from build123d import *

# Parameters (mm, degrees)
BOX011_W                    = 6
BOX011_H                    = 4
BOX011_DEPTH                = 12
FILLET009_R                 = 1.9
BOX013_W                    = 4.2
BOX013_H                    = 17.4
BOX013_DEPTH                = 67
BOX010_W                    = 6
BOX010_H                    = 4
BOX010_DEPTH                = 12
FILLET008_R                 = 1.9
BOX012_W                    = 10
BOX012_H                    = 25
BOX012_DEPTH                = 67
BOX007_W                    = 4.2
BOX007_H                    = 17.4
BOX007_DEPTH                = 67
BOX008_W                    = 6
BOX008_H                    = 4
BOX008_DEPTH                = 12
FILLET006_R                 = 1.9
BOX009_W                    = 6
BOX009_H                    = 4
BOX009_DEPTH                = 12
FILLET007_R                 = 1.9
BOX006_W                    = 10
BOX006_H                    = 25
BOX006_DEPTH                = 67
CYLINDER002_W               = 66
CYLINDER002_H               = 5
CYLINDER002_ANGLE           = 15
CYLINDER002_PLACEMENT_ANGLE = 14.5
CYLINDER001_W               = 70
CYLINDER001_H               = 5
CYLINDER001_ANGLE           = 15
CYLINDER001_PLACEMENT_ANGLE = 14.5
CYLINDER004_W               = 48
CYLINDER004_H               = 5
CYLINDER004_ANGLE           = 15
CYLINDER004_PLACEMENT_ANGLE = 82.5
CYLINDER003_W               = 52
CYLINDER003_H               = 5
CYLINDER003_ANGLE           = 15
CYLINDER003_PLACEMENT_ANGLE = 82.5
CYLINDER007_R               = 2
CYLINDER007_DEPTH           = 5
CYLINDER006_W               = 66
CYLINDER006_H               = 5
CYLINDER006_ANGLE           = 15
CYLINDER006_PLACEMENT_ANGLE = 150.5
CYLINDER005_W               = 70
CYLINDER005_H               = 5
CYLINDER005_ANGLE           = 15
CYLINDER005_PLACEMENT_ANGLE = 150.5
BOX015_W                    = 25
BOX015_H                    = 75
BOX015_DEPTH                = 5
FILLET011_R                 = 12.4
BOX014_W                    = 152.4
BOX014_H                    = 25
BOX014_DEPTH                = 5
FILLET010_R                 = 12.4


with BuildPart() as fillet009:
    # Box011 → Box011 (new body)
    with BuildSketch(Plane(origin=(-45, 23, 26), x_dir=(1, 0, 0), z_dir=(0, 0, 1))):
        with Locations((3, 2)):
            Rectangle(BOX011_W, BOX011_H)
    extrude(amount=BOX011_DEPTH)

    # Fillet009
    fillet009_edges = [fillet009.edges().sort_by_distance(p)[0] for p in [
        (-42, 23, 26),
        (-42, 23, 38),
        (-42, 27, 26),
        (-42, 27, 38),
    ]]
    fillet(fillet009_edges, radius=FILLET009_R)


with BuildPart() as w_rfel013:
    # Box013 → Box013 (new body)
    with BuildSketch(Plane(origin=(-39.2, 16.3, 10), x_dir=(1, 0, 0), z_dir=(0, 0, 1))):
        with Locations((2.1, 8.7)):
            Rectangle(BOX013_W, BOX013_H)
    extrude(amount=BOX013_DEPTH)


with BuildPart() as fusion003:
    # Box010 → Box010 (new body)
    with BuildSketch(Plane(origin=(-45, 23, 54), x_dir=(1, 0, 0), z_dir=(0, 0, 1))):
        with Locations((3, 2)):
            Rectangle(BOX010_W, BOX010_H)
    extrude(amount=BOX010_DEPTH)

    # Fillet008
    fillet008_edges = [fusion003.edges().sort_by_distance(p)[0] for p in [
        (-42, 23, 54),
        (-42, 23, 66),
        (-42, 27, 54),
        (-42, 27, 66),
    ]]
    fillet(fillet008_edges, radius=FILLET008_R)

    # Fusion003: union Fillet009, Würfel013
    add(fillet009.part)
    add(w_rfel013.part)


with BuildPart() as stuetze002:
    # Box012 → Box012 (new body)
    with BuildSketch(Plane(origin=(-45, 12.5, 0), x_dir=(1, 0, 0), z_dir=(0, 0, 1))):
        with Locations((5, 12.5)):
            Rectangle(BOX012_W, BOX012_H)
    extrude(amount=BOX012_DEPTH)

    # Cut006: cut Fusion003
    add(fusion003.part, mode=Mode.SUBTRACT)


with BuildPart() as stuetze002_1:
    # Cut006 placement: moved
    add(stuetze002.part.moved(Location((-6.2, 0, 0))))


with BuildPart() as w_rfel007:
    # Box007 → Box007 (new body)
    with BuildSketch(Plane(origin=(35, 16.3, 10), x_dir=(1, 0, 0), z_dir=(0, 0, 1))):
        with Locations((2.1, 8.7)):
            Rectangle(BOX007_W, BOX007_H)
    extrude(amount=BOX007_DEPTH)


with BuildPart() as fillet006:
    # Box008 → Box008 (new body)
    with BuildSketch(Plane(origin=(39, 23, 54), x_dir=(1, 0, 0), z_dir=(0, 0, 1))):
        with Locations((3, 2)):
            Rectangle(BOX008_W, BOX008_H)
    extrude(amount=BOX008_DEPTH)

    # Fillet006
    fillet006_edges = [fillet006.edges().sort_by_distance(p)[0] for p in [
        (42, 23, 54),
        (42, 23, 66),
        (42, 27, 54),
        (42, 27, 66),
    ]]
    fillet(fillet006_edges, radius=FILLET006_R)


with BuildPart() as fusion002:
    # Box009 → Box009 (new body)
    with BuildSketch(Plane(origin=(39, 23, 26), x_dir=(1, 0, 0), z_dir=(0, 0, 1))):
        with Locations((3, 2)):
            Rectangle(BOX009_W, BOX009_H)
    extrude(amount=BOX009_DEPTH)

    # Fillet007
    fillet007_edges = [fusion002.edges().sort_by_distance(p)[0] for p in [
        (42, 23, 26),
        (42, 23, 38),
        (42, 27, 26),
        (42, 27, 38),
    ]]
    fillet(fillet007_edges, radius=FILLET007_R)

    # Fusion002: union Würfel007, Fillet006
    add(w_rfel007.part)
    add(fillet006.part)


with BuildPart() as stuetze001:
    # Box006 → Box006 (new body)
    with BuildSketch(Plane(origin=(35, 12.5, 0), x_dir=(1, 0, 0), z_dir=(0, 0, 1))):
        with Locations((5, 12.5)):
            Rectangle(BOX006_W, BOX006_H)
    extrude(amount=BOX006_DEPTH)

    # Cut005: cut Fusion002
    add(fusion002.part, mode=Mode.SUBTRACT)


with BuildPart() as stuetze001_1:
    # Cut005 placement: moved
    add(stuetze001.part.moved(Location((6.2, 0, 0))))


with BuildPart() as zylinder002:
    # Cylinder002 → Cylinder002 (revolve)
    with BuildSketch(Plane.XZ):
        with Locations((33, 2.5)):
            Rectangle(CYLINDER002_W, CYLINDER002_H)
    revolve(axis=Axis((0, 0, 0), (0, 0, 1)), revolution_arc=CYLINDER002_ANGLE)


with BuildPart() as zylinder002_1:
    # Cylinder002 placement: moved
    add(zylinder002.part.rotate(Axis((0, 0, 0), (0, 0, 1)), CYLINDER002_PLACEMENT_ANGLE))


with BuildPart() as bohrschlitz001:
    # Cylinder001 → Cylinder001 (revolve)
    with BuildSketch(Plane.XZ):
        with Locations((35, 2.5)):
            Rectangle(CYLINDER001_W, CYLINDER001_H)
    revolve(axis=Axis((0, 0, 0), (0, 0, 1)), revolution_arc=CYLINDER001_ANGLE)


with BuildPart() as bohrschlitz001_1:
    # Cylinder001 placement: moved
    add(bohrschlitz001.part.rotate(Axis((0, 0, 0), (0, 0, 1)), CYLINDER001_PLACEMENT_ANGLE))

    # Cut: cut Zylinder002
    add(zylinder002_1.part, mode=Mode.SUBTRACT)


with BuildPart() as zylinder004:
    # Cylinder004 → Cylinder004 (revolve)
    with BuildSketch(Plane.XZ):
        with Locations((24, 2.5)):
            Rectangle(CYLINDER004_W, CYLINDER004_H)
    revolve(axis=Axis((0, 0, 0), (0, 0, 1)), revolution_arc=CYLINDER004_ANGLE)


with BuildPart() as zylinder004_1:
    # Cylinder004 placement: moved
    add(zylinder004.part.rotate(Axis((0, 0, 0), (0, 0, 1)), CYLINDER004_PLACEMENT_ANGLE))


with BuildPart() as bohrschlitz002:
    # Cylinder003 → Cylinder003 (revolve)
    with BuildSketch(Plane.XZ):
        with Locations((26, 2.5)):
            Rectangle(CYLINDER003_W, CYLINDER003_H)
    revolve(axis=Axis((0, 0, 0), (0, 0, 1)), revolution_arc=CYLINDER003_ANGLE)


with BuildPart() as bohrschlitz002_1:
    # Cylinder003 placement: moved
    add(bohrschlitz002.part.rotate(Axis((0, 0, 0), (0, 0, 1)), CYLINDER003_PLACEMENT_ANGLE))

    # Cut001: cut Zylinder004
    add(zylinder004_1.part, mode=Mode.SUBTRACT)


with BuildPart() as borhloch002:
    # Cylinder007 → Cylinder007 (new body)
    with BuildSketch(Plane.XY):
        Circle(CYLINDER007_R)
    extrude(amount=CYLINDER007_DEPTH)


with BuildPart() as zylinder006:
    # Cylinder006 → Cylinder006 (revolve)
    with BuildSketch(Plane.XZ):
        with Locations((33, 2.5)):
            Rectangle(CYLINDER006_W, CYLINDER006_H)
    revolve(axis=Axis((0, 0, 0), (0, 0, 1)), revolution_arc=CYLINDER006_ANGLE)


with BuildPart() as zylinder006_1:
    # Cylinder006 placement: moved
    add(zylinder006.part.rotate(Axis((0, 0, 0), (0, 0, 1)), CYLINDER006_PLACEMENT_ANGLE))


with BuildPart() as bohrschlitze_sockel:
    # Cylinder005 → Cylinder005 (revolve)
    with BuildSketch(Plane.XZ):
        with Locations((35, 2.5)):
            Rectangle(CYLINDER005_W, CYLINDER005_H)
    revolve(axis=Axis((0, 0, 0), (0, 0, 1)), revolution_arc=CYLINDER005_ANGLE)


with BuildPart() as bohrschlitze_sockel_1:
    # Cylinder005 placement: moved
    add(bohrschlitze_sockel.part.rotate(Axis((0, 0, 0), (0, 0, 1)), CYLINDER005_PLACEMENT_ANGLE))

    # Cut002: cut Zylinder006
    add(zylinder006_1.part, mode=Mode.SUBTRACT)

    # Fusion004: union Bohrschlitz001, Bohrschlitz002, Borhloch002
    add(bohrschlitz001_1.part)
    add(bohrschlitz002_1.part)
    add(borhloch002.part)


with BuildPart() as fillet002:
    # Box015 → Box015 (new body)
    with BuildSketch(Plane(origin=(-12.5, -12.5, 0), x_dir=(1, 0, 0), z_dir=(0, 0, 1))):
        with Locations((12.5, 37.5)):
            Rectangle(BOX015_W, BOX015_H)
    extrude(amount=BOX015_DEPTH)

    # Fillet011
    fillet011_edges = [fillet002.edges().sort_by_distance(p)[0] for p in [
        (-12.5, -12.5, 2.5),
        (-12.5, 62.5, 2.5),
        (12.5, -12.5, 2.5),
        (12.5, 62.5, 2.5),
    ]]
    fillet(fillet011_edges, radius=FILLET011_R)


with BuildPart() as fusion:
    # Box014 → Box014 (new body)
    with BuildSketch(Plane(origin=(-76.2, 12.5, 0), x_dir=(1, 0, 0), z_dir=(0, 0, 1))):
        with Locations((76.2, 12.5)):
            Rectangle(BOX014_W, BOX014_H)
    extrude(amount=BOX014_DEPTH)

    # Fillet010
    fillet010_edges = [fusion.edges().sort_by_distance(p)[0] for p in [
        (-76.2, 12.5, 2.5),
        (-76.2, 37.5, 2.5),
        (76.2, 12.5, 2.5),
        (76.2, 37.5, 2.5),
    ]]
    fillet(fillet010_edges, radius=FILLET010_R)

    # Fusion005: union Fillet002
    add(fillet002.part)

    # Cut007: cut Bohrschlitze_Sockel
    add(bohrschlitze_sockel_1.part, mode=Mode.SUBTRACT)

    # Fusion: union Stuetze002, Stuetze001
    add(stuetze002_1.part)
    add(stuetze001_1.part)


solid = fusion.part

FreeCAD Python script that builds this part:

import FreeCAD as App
import Part
import Sketcher
from FreeCAD import Vector


def edges_at(feature, points):
    """Names of the edges that pass closest to the given points."""
    edges = feature.Shape.Edges
    near = lambda p: min(range(len(edges)), key=lambda i: edges[i].distToShape(Part.Vertex(*p))[0])
    return sorted({f"Edge{near(p) + 1}" for p in points})

doc = App.newDocument("Part")
body = doc.addObject("PartDesign::Body", "Body")

sketch1 = body.newObject("Sketcher::SketchObject", "Sketch")
sketch1.AttachmentSupport = (doc.getObject("XY_Plane"), [""])
sketch1.MapMode = "FlatFace"
sketch1.AttachmentOffset = App.Placement(Vector(0, 0, 26), App.Rotation())
sketch1.addGeometry([
    Part.LineSegment(Vector(-45, 27, 0), Vector(-45, 23, 0)),
    Part.LineSegment(Vector(-45, 23, 0), Vector(-39, 23, 0)),
    Part.LineSegment(Vector(-39, 23, 0), Vector(-39, 27, 0)),
    Part.LineSegment(Vector(-39, 27, 0), Vector(-45, 27, 0)),
], False)
sketch1.addConstraint([
    Sketcher.Constraint("Coincident", 0, 2, 1, 1),
    Sketcher.Constraint("Coincident", 1, 2, 2, 1),
    Sketcher.Constraint("Coincident", 2, 2, 3, 1),
    Sketcher.Constraint("Coincident", 3, 2, 0, 1),
    Sketcher.Constraint("Vertical", 0),
    Sketcher.Constraint("Horizontal", 1),
    Sketcher.Constraint("Vertical", 2),
    Sketcher.Constraint("Horizontal", 3),
    Sketcher.Constraint("DistanceX", 1, 1, 1, 2, 6.0),
    Sketcher.Constraint("DistanceY", 0, 2, 0, 1, 4.0),
    Sketcher.Constraint("DistanceX", 0, 2, -1, 1, 45.0),
    Sketcher.Constraint("DistanceY", -1, 1, 0, 2, 23.0),
])
pad1 = body.newObject("PartDesign::Pad", "Pad")
pad1.Profile = sketch1
pad1.Length = 12
doc.recompute()

fillet = body.newObject("PartDesign::Fillet", "Fillet")
fillet.Base = (pad1, edges_at(pad1, [
    (-42, 23, 26),
    (-42, 23, 38),
    (-42, 27, 26),
    (-42, 27, 38),
]))
fillet.Radius = 1.9
body2 = doc.addObject("PartDesign::Body", "Body001")

sketch2 = body2.newObject("Sketcher::SketchObject", "Sketch001")
sketch2.AttachmentSupport = (doc.getObject("XY_Plane001"), [""])
sketch2.MapMode = "FlatFace"
sketch2.AttachmentOffset = App.Placement(Vector(0, 0, 10), App.Rotation())
sketch2.addGeometry([
    Part.LineSegment(Vector(-39.2, 33.7, 0), Vector(-39.2, 16.3, 0)),
    Part.LineSegment(Vector(-39.2, 16.3, 0), Vector(-35, 16.3, 0)),
    Part.LineSegment(Vector(-35, 16.3, 0), Vector(-35, 33.7, 0)),
    Part.LineSegment(Vector(-35, 33.7, 0), Vector(-39.2, 33.7, 0)),
], False)
sketch2.addConstraint([
    Sketcher.Constraint("Coincident", 0, 2, 1, 1),
    Sketcher.Constraint("Coincident", 1, 2, 2, 1),
    Sketcher.Constraint("Coincident", 2, 2, 3, 1),
    Sketcher.Constraint("Coincident", 3, 2, 0, 1),
    Sketcher.Constraint("Vertical", 0),
    Sketcher.Constraint("Horizontal", 1),
    Sketcher.Constraint("Vertical", 2),
    Sketcher.Constraint("Horizontal", 3),
    Sketcher.Constraint("DistanceX", 1, 1, 1, 2, 4.2),
    Sketcher.Constraint("DistanceY", 0, 2, 0, 1, 17.4),
    Sketcher.Constraint("DistanceX", 1, 2, -1, 1, 35.0),
    Sketcher.Constraint("DistanceY", -1, 1, 0, 2, 16.3),
])
pad2 = body2.newObject("PartDesign::Pad", "Pad001")
pad2.Profile = sketch2
pad2.Length = 67
body3 = doc.addObject("PartDesign::Body", "Body002")
body3.AllowCompound = True

sketch3 = body3.newObject("Sketcher::SketchObject", "Sketch002")
sketch3.AttachmentSupport = (doc.getObject("XY_Plane002"), [""])
sketch3.MapMode = "FlatFace"
sketch3.AttachmentOffset = App.Placement(Vector(0, 0, 54), App.Rotation())
sketch3.addGeometry([
    Part.LineSegment(Vector(-45, 27, 0), Vector(-45, 23, 0)),
    Part.LineSegment(Vector(-45, 23, 0), Vector(-39, 23, 0)),
    Part.LineSegment(Vector(-39, 23, 0), Vector(-39, 27, 0)),
    Part.LineSegment(Vector(-39, 27, 0), Vector(-45, 27, 0)),
], False)
sketch3.addConstraint([
    Sketcher.Constraint("Coincident", 0, 2, 1, 1),
    Sketcher.Constraint("Coincident", 1, 2, 2, 1),
    Sketcher.Constraint("Coincident", 2, 2, 3, 1),
    Sketcher.Constraint("Coincident", 3, 2, 0, 1),
    Sketcher.Constraint("Vertical", 0),
    Sketcher.Constraint("Horizontal", 1),
    Sketcher.Constraint("Vertical", 2),
    Sketcher.Constraint("Horizontal", 3),
    Sketcher.Constraint("DistanceX", 1, 1, 1, 2, 6.0),
    Sketcher.Constraint("DistanceY", 0, 2, 0, 1, 4.0),
    Sketcher.Constraint("DistanceX", 0, 2, -1, 1, 45.0),
    Sketcher.Constraint("DistanceY", -1, 1, 0, 2, 23.0),
])
pad3 = body3.newObject("PartDesign::Pad", "Pad002")
pad3.Profile = sketch3
pad3.Length = 12
doc.recompute()

fillet2 = body3.newObject("PartDesign::Fillet", "Fillet001")
fillet2.Base = (pad3, edges_at(pad3, [
    (-42, 23, 54),
    (-42, 23, 66),
    (-42, 27, 54),
    (-42, 27, 66),
]))
fillet2.Radius = 1.9
doc.recompute()

boolean = body3.newObject("PartDesign::Boolean", "Boolean")
boolean.Type = "Fuse"
boolean.addObjects([body])
doc.recompute()

boolean2 = body3.newObject("PartDesign::Boolean", "Boolean001")
boolean2.Type = "Fuse"
boolean2.addObjects([body2])
body4 = doc.addObject("PartDesign::Body", "Body003")

sketch4 = body4.newObject("Sketcher::SketchObject", "Sketch003")
sketch4.AttachmentSupport = (doc.getObject("XY_Plane003"), [""])
sketch4.MapMode = "FlatFace"
sketch4.addGeometry([
    Part.LineSegment(Vector(-45, 38, 0), Vector(-45, 12, 0)),
    Part.LineSegment(Vector(-45, 12, 0), Vector(-35, 12, 0)),
    Part.LineSegment(Vector(-35, 12, 0), Vector(-35, 38, 0)),
    Part.LineSegment(Vector(-35, 38, 0), Vector(-45, 38, 0)),
], False)
sketch4.addConstraint([
    Sketcher.Constraint("Coincident", 0, 2, 1, 1),
    Sketcher.Constraint("Coincident", 1, 2, 2, 1),
    Sketcher.Constraint("Coincident", 2, 2, 3, 1),
    Sketcher.Constraint("Coincident", 3, 2, 0, 1),
    Sketcher.Constraint("Vertical", 0),
    Sketcher.Constraint("Horizontal", 1),
    Sketcher.Constraint("Vertical", 2),
    Sketcher.Constraint("Horizontal", 3),
    Sketcher.Constraint("DistanceX", 1, 1, 1, 2, 10.0),
    Sketcher.Constraint("DistanceY", 0, 2, 0, 1, 25.0),
    Sketcher.Constraint("DistanceX", 0, 2, -1, 1, 45.0),
    Sketcher.Constraint("DistanceY", -1, 1, 0, 2, 12.5),
])
pad4 = body4.newObject("PartDesign::Pad", "Pad003")
pad4.Profile = sketch4
pad4.Length = 67
doc.recompute()

boolean3 = body4.newObject("PartDesign::Boolean", "Boolean002")
boolean3.Type = "Cut"
boolean3.addObjects([body3])
body5 = doc.addObject("PartDesign::Body", "Body004")
doc.recompute()

body4.Placement = App.Placement(Vector(-6.2, 0, 0), App.Rotation(Vector(0, 0, 1), 0))
boolean4 = body5.newObject("PartDesign::Boolean", "Boolean003")
boolean4.Type = "Fuse"
boolean4.addObjects([body4])
body6 = doc.addObject("PartDesign::Body", "Body005")

sketch5 = body6.newObject("Sketcher::SketchObject", "Sketch004")
sketch5.AttachmentSupport = (doc.getObject("XY_Plane005"), [""])
sketch5.MapMode = "FlatFace"
sketch5.AttachmentOffset = App.Placement(Vector(0, 0, 10), App.Rotation())
sketch5.addGeometry([
    Part.LineSegment(Vector(35, 33.7, 0), Vector(35, 16.3, 0)),
    Part.LineSegment(Vector(35, 16.3, 0), Vector(39.2, 16.3, 0)),
    Part.LineSegment(Vector(39.2, 16.3, 0), Vector(39.2, 33.7, 0)),
    Part.LineSegment(Vector(39.2, 33.7, 0), Vector(35, 33.7, 0)),
], False)
sketch5.addConstraint([
    Sketcher.Constraint("Coincident", 0, 2, 1, 1),
    Sketcher.Constraint("Coincident", 1, 2, 2, 1),
    Sketcher.Constraint("Coincident", 2, 2, 3, 1),
    Sketcher.Constraint("Coincident", 3, 2, 0, 1),
    Sketcher.Constraint("Vertical", 0),
    Sketcher.Constraint("Horizontal", 1),
    Sketcher.Constraint("Vertical", 2),
    Sketcher.Constraint("Horizontal", 3),
    Sketcher.Constraint("DistanceX", 1, 1, 1, 2, 4.2),
    Sketcher.Constraint("DistanceY", 0, 2, 0, 1, 17.4),
    Sketcher.Constraint("DistanceX", -1, 1, 0, 2, 35.0),
    Sketcher.Constraint("DistanceY", -1, 1, 0, 2, 16.3),
])
pad5 = body6.newObject("PartDesign::Pad", "Pad004")
pad5.Profile = sketch5
pad5.Length = 67
body7 = doc.addObject("PartDesign::Body", "Body006")

sketch6 = body7.newObject("Sketcher::SketchObject", "Sketch005")
sketch6.AttachmentSupport = (doc.getObject("XY_Plane006"), [""])
sketch6.MapMode = "FlatFace"
sketch6.AttachmentOffset = App.Placement(Vector(0, 0, 54), App.Rotation())
sketch6.addGeometry([
    Part.LineSegment(Vector(39, 27, 0), Vector(39, 23, 0)),
    Part.LineSegment(Vector(39, 23, 0), Vector(45, 23, 0)),
    Part.LineSegment(Vector(45, 23, 0), Vector(45, 27, 0)),
    Part.LineSegment(Vector(45, 27, 0), Vector(39, 27, 0)),
], False)
sketch6.addConstraint([
    Sketcher.Constraint("Coincident", 0, 2, 1, 1),
    Sketcher.Constraint("Coincident", 1, 2, 2, 1),
    Sketcher.Constraint("Coincident", 2, 2, 3, 1),
    Sketcher.Constraint("Coincident", 3, 2, 0, 1),
    Sketcher.Constraint("Vertical", 0),
    Sketcher.Constraint("Horizontal", 1),
    Sketcher.Constraint("Vertical", 2),
    Sketcher.Constraint("Horizontal", 3),
    Sketcher.Constraint("DistanceX", 1, 1, 1, 2, 6.0),
    Sketcher.Constraint("DistanceY", 0, 2, 0, 1, 4.0),
    Sketcher.Constraint("DistanceX", -1, 1, 0, 2, 39.0),
    Sketcher.Constraint("DistanceY", -1, 1, 0, 2, 23.0),
])
pad6 = body7.newObject("PartDesign::Pad", "Pad005")
pad6.Profile = sketch6
pad6.Length = 12
doc.recompute()

fillet3 = body7.newObject("PartDesign::Fillet", "Fillet002")
fillet3.Base = (pad6, edges_at(pad6, [
    (42, 23, 54),
    (42, 23, 66),
    (42, 27, 54),
    (42, 27, 66),
]))
fillet3.Radius = 1.9
body8 = doc.addObject("PartDesign::Body", "Body007")

sketch7 = body8.newObject("Sketcher::SketchObject", "Sketch006")
sketch7.AttachmentSupport = (doc.getObject("XY_Plane007"), [""])
sketch7.MapMode = "FlatFace"
sketch7.AttachmentOffset = App.Placement(Vector(0, 0, 26), App.Rotation())
sketch7.addGeometry([
    Part.LineSegment(Vector(39, 27, 0), Vector(39, 23, 0)),
    Part.LineSegment(Vector(39, 23, 0), Vector(45, 23, 0)),
    Part.LineSegment(Vector(45, 23, 0), Vector(45, 27, 0)),
    Part.LineSegment(Vector(45, 27, 0), Vector(39, 27, 0)),
], False)
sketch7.addConstraint([
    Sketcher.Constraint("Coincident", 0, 2, 1, 1),
    Sketcher.Constraint("Coincident", 1, 2, 2, 1),
    Sketcher.Constraint("Coincident", 2, 2, 3, 1),
    Sketcher.Constraint("Coincident", 3, 2, 0, 1),
    Sketcher.Constraint("Vertical", 0),
    Sketcher.Constraint("Horizontal", 1),
    Sketcher.Constraint("Vertical", 2),
    Sketcher.Constraint("Horizontal", 3),
    Sketcher.Constraint("DistanceX", 1, 1, 1, 2, 6.0),
    Sketcher.Constraint("DistanceY", 0, 2, 0, 1, 4.0),
    Sketcher.Constraint("DistanceX", -1, 1, 0, 2, 39.0),
    Sketcher.Constraint("DistanceY", -1, 1, 0, 2, 23.0),
])
pad7 = body8.newObject("PartDesign::Pad", "Pad006")
pad7.Profile = sketch7
pad7.Length = 12
doc.recompute()

fillet4 = body8.newObject("PartDesign::Fillet", "Fillet003")
fillet4.Base = (pad7, edges_at(pad7, [
    (42, 23, 26),
    (42, 23, 38),
    (42, 27, 26),
    (42, 27, 38),
]))
fillet4.Radius = 1.9
doc.recompute()

boolean5 = body8.newObject("PartDesign::Boolean", "Boolean004")
boolean5.Type = "Fuse"
boolean5.addObjects([body6])
doc.recompute()

boolean6 = body8.newObject("PartDesign::Boolean", "Boolean005")
boolean6.Type = "Fuse"
boolean6.addObjects([body7])
body9 = doc.addObject("PartDesign::Body", "Body008")

sketch8 = body9.newObject("Sketcher::SketchObject", "Sketch007")
sketch8.AttachmentSupport = (doc.getObject("XY_Plane008"), [""])
sketch8.MapMode = "FlatFace"
sketch8.addGeometry([
    Part.LineSegment(Vector(35, 38, 0), Vector(35, 12, 0)),
    Part.LineSegment(Vector(35, 12, 0), Vector(45, 12, 0)),
    Part.LineSegment(Vector(45, 12, 0), Vector(45, 38, 0)),
    Part.LineSegment(Vector(45, 38, 0), Vector(35, 38, 0)),
], False)
sketch8.addConstraint([
    Sketcher.Constraint("Coincident", 0, 2, 1, 1),
    Sketcher.Constraint("Coincident", 1, 2, 2, 1),
    Sketcher.Constraint("Coincident", 2, 2, 3, 1),
    Sketcher.Constraint("Coincident", 3, 2, 0, 1),
    Sketcher.Constraint("Vertical", 0),
    Sketcher.Constraint("Horizontal", 1),
    Sketcher.Constraint("Vertical", 2),
    Sketcher.Constraint("Horizontal", 3),
    Sketcher.Constraint("DistanceX", 1, 1, 1, 2, 10.0),
    Sketcher.Constraint("DistanceY", 0, 2, 0, 1, 25.0),
    Sketcher.Constraint("DistanceX", -1, 1, 0, 2, 35.0),
    Sketcher.Constraint("DistanceY", -1, 1, 0, 2, 12.5),
])
pad8 = body9.newObject("PartDesign::Pad", "Pad007")
pad8.Profile = sketch8
pad8.Length = 67
doc.recompute()

boolean7 = body9.newObject("PartDesign::Boolean", "Boolean006")
boolean7.Type = "Cut"
boolean7.addObjects([body8])
body10 = doc.addObject("PartDesign::Body", "Body009")
doc.recompute()

body9.Placement = App.Placement(Vector(6.2, 0, 0), App.Rotation(Vector(0, 0, 1), 0))
boolean8 = body10.newObject("PartDesign::Boolean", "Boolean007")
boolean8.Type = "Fuse"
boolean8.addObjects([body9])
body11 = doc.addObject("PartDesign::Body", "Body010")

sketch9 = body11.newObject("Sketcher::SketchObject", "Sketch008")
sketch9.AttachmentSupport = (doc.getObject("XZ_Plane010"), [""])
sketch9.MapMode = "FlatFace"
sketch9.addGeometry([
    Part.LineSegment(Vector(0, 5, 0), Vector(0, 0, 0)),
    Part.LineSegment(Vector(0, 0, 0), Vector(66, 0, 0)),
    Part.LineSegment(Vector(66, 0, 0), Vector(66, 5, 0)),
    Part.LineSegment(Vector(66, 5, 0), Vector(0, 5, 0)),
], False)
sketch9.addConstraint([
    Sketcher.Constraint("Coincident", 0, 2, 1, 1),
    Sketcher.Constraint("Coincident", 1, 2, 2, 1),
    Sketcher.Constraint("Coincident", 2, 2, 3, 1),
    Sketcher.Constraint("Coincident", 3, 2, 0, 1),
    Sketcher.Constraint("Vertical", 0),
    Sketcher.Constraint("Horizontal", 1),
    Sketcher.Constraint("Vertical", 2),
    Sketcher.Constraint("Horizontal", 3),
    Sketcher.Constraint("Coincident", 0, 2, -1, 1),
    Sketcher.Constraint("DistanceX", 1, 1, 1, 2, 66.0),
    Sketcher.Constraint("DistanceY", 0, 2, 0, 1, 5.0),
])
revolution = body11.newObject("PartDesign::Revolution", "Revolution")
revolution.Profile = sketch9
revolution.ReferenceAxis = (sketch9, ["V_Axis"])
revolution.Angle = 15
body12 = doc.addObject("PartDesign::Body", "Body011")
doc.recompute()

body11.Placement = App.Placement(Vector(0, 0, 0), App.Rotation(Vector(0, 0, 1), 14.5))
boolean9 = body12.newObject("PartDesign::Boolean", "Boolean008")
boolean9.Type = "Fuse"
boolean9.addObjects([body11])
body13 = doc.addObject("PartDesign::Body", "Body012")

sketch10 = body13.newObject("Sketcher::SketchObject", "Sketch009")
sketch10.AttachmentSupport = (doc.getObject("XZ_Plane012"), [""])
sketch10.MapMode = "FlatFace"
sketch10.addGeometry([
    Part.LineSegment(Vector(0, 5, 0), Vector(0, 0, 0)),
    Part.LineSegment(Vector(0, 0, 0), Vector(70, 0, 0)),
    Part.LineSegment(Vector(70, 0, 0), Vector(70, 5, 0)),
    Part.LineSegment(Vector(70, 5, 0), Vector(0, 5, 0)),
], False)
sketch10.addConstraint([
    Sketcher.Constraint("Coincident", 0, 2, 1, 1),
    Sketcher.Constraint("Coincident", 1, 2, 2, 1),
    Sketcher.Constraint("Coincident", 2, 2, 3, 1),
    Sketcher.Constraint("Coincident", 3, 2, 0, 1),
    Sketcher.Constraint("Vertical", 0),
    Sketcher.Constraint("Horizontal", 1),
    Sketcher.Constraint("Vertical", 2),
    Sketcher.Constraint("Horizontal", 3),
    Sketcher.Constraint("Coincident", 0, 2, -1, 1),
    Sketcher.Constraint("DistanceX", 1, 1, 1, 2, 70.0),
    Sketcher.Constraint("DistanceY", 0, 2, 0, 1, 5.0),
])
revolution2 = body13.newObject("PartDesign::Revolution", "Revolution001")
revolution2.Profile = sketch10
revolution2.ReferenceAxis = (sketch10, ["V_Axis"])
revolution2.Angle = 15
body14 = doc.addObject("PartDesign::Body", "Body013")
doc.recompute()

body13.Placement = App.Placement(Vector(0, 0, 0), App.Rotation(Vector(0, 0, 1), 14.5))
boolean10 = body14.newObject("PartDesign::Boolean", "Boolean009")
boolean10.Type = "Fuse"
boolean10.addObjects([body13])
doc.recompute()

boolean11 = body14.newObject("PartDesign::Boolean", "Boolean010")
boolean11.Type = "Cut"
boolean11.addObjects([body12])
body15 = doc.addObject("PartDesign::Body", "Body014")

sketch11 = body15.newObject("Sketcher::SketchObject", "Sketch010")
sketch11.AttachmentSupport = (doc.getObject("XZ_Plane014"), [""])
sketch11.MapMode = "FlatFace"
sketch11.addGeometry([
    Part.LineSegment(Vector(0, 5, 0), Vector(0, 0, 0)),
    Part.LineSegment(Vector(0, 0, 0), Vector(48, 0, 0)),
    Part.LineSegment(Vector(48, 0, 0), Vector(48, 5, 0)),
    Part.LineSegment(Vector(48, 5, 0), Vector(0, 5, 0)),
], False)
sketch11.addConstraint([
    Sketcher.Constraint("Coincident", 0, 2, 1, 1),
    Sketcher.Constraint("Coincident", 1, 2, 2, 1),
    Sketcher.Constraint("Coincident", 2, 2, 3, 1),
    Sketcher.Constraint("Coincident", 3, 2, 0, 1),
    Sketcher.Constraint("Vertical", 0),
    Sketcher.Constraint("Horizontal", 1),
    Sketcher.Constraint("Vertical", 2),
    Sketcher.Constraint("Horizontal", 3),
    Sketcher.Constraint("Coincident", 0, 2, -1, 1),
    Sketcher.Constraint("DistanceX", 1, 1, 1, 2, 48.0),
    Sketcher.Constraint("DistanceY", 0, 2, 0, 1, 5.0),
])
revolution3 = body15.newObject("PartDesign::Revolution", "Revolution002")
revolution3.Profile = sketch11
revolution3.ReferenceAxis = (sketch11, ["V_Axis"])
revolution3.Angle = 15
body16 = doc.addObject("PartDesign::Body", "Body015")
doc.recompute()

body15.Placement = App.Placement(Vector(0, 0, 0), App.Rotation(Vector(0, 0, 1), 82.5))
boolean12 = body16.newObject("PartDesign::Boolean", "Boolean011")
boolean12.Type = "Fuse"
boolean12.addObjects([body15])
body17 = doc.addObject("PartDesign::Body", "Body016")

sketch12 = body17.newObject("Sketcher::SketchObject", "Sketch011")
sketch12.AttachmentSupport = (doc.getObject("XZ_Plane016"), [""])
sketch12.MapMode = "FlatFace"
sketch12.addGeometry([
    Part.LineSegment(Vector(0, 5, 0), Vector(0, 0, 0)),
    Part.LineSegment(Vector(0, 0, 0), Vector(52, 0, 0)),
    Part.LineSegment(Vector(52, 0, 0), Vector(52, 5, 0)),
    Part.LineSegment(Vector(52, 5, 0), Vector(0, 5, 0)),
], False)
sketch12.addConstraint([
    Sketcher.Constraint("Coincident", 0, 2, 1, 1),
    Sketcher.Constraint("Coincident", 1, 2, 2, 1),
    Sketcher.Constraint("Coincident", 2, 2, 3, 1),
    Sketcher.Constraint("Coincident", 3, 2, 0, 1),
    Sketcher.Constraint("Vertical", 0),
    Sketcher.Constraint("Horizontal", 1),
    Sketcher.Constraint("Vertical", 2),
    Sketcher.Constraint("Horizontal", 3),
    Sketcher.Constraint("Coincident", 0, 2, -1, 1),
    Sketcher.Constraint("DistanceX", 1, 1, 1, 2, 52.0),
    Sketcher.Constraint("DistanceY", 0, 2, 0, 1, 5.0),
])
revolution4 = body17.newObject("PartDesign::Revolution", "Revolution003")
revolution4.Profile = sketch12
revolution4.ReferenceAxis = (sketch12, ["V_Axis"])
revolution4.Angle = 15
body18 = doc.addObject("PartDesign::Body", "Body017")
doc.recompute()

body17.Placement = App.Placement(Vector(0, 0, 0), App.Rotation(Vector(0, 0, 1), 82.5))
boolean13 = body18.newObject("PartDesign::Boolean", "Boolean012")
boolean13.Type = "Fuse"
boolean13.addObjects([body17])
doc.recompute()

boolean14 = body18.newObject("PartDesign::Boolean", "Boolean013")
boolean14.Type = "Cut"
boolean14.addObjects([body16])
body19 = doc.addObject("PartDesign::Body", "Body018")

sketch13 = body19.newObject("Sketcher::SketchObject", "Sketch012")
sketch13.AttachmentSupport = (doc.getObject("XY_Plane018"), [""])
sketch13.MapMode = "FlatFace"
sketch13.addGeometry(Part.Circle(Vector(0, 0, 0), Vector(0, 0, 1), 2), False)
sketch13.addConstraint([
    Sketcher.Constraint("Coincident", 0, 3, -1, 1),
    Sketcher.Constraint("Diameter", 0, 4.0),
])
pad9 = body19.newObject("PartDesign::Pad", "Pad008")
pad9.Profile = sketch13
pad9.Length = 5
body20 = doc.addObject("PartDesign::Body", "Body019")

sketch14 = body20.newObject("Sketcher::SketchObject", "Sketch013")
sketch14.AttachmentSupport = (doc.getObject("XZ_Plane019"), [""])
sketch14.MapMode = "FlatFace"
sketch14.addGeometry([
    Part.LineSegment(Vector(0, 5, 0), Vector(0, 0, 0)),
    Part.LineSegment(Vector(0, 0, 0), Vector(66, 0, 0)),
    Part.LineSegment(Vector(66, 0, 0), Vector(66, 5, 0)),
    Part.LineSegment(Vector(66, 5, 0), Vector(0, 5, 0)),
], False)
sketch14.addConstraint([
    Sketcher.Constraint("Coincident", 0, 2, 1, 1),
    Sketcher.Constraint("Coincident", 1, 2, 2, 1),
    Sketcher.Constraint("Coincident", 2, 2, 3, 1),
    Sketcher.Constraint("Coincident", 3, 2, 0, 1),
    Sketcher.Constraint("Vertical", 0),
    Sketcher.Constraint("Horizontal", 1),
    Sketcher.Constraint("Vertical", 2),
    Sketcher.Constraint("Horizontal", 3),
    Sketcher.Constraint("Coincident", 0, 2, -1, 1),
    Sketcher.Constraint("DistanceX", 1, 1, 1, 2, 66.0),
    Sketcher.Constraint("DistanceY", 0, 2, 0, 1, 5.0),
])
revolution5 = body20.newObject("PartDesign::Revolution", "Revolution004")
revolution5.Profile = sketch14
revolution5.ReferenceAxis = (sketch14, ["V_Axis"])
revolution5.Angle = 15
body21 = doc.addObject("PartDesign::Body", "Body020")
doc.recompute()

body20.Placement = App.Placement(Vector(0, 0, 0), App.Rotation(Vector(0, 0, 1), 150.5))
boolean15 = body21.newObject("PartDesign::Boolean", "Boolean014")
boolean15.Type = "Fuse"
boolean15.addObjects([body20])
body22 = doc.addObject("PartDesign::Body", "Body021")

sketch15 = body22.newObject("Sketcher::SketchObject", "Sketch014")
sketch15.AttachmentSupport = (doc.getObject("XZ_Plane021"), [""])
sketch15.MapMode = "FlatFace"
sketch15.addGeometry([
    Part.LineSegment(Vector(0, 5, 0), Vector(0, 0, 0)),
    Part.LineSegment(Vector(0, 0, 0), Vector(70, 0, 0)),
    Part.LineSegment(Vector(70, 0, 0), Vector(70, 5, 0)),
    Part.LineSegment(Vector(70, 5, 0), Vector(0, 5, 0)),
], False)
sketch15.addConstraint([
    Sketcher.Constraint("Coincident", 0, 2, 1, 1),
    Sketcher.Constraint("Coincident", 1, 2, 2, 1),
    Sketcher.Constraint("Coincident", 2, 2, 3, 1),
    Sketcher.Constraint("Coincident", 3, 2, 0, 1),
    Sketcher.Constraint("Vertical", 0),
    Sketcher.Constraint("Horizontal", 1),
    Sketcher.Constraint("Vertical", 2),
    Sketcher.Constraint("Horizontal", 3),
    Sketcher.Constraint("Coincident", 0, 2, -1, 1),
    Sketcher.Constraint("DistanceX", 1, 1, 1, 2, 70.0),
    Sketcher.Constraint("DistanceY", 0, 2, 0, 1, 5.0),
])
revolution6 = body22.newObject("PartDesign::Revolution", "Revolution005")
revolution6.Profile = sketch15
revolution6.ReferenceAxis = (sketch15, ["V_Axis"])
revolution6.Angle = 15
body23 = doc.addObject("PartDesign::Body", "Body022")
body23.AllowCompound = True
doc.recompute()

body22.Placement = App.Placement(Vector(0, 0, 0), App.Rotation(Vector(0, 0, 1), 150.5))
boolean16 = body23.newObject("PartDesign::Boolean", "Boolean015")
boolean16.Type = "Fuse"
boolean16.addObjects([body22])
doc.recompute()

boolean17 = body23.newObject("PartDesign::Boolean", "Boolean016")
boolean17.Type = "Cut"
boolean17.addObjects([body21])
doc.recompute()

boolean18 = body23.newObject("PartDesign::Boolean", "Boolean017")
boolean18.Type = "Fuse"
boolean18.addObjects([body14])
doc.recompute()

boolean19 = body23.newObject("PartDesign::Boolean", "Boolean018")
boolean19.Type = "Fuse"
boolean19.addObjects([body18])
doc.recompute()

boolean20 = body23.newObject("PartDesign::Boolean", "Boolean019")
boolean20.Type = "Fuse"
boolean20.addObjects([body19])
body24 = doc.addObject("PartDesign::Body", "Body023")

sketch16 = body24.newObject("Sketcher::SketchObject", "Sketch015")
sketch16.AttachmentSupport = (doc.getObject("XY_Plane023"), [""])
sketch16.MapMode = "FlatFace"
sketch16.addGeometry([
    Part.LineSegment(Vector(-12, 62, 0), Vector(-12, -12, 0)),
    Part.LineSegment(Vector(-12, -12, 0), Vector(12, -12, 0)),
    Part.LineSegment(Vector(12, -12, 0), Vector(12, 62, 0)),
    Part.LineSegment(Vector(12, 62, 0), Vector(-12, 62, 0)),
], False)
sketch16.addConstraint([
    Sketcher.Constraint("Coincident", 0, 2, 1, 1),
    Sketcher.Constraint("Coincident", 1, 2, 2, 1),
    Sketcher.Constraint("Coincident", 2, 2, 3, 1),
    Sketcher.Constraint("Coincident", 3, 2, 0, 1),
    Sketcher.Constraint("Vertical", 0),
    Sketcher.Constraint("Horizontal", 1),
    Sketcher.Constraint("Vertical", 2),
    Sketcher.Constraint("Horizontal", 3),
    Sketcher.Constraint("DistanceX", 1, 1, 1, 2, 25.0),
    Sketcher.Constraint("DistanceY", 0, 2, 0, 1, 75.0),
    Sketcher.Constraint("DistanceX", 0, 2, -1, 1, 12.5),
    Sketcher.Constraint("DistanceY", 0, 2, -1, 1, 12.5),
])
pad10 = body24.newObject("PartDesign::Pad", "Pad009")
pad10.Profile = sketch16
pad10.Length = 5
doc.recompute()

fillet5 = body24.newObject("PartDesign::Fillet", "Fillet004")
fillet5.Base = (pad10, edges_at(pad10, [
    (-12.5, -12.5, 2.5),
    (-12.5, 62.5, 2.5),
    (12.5, -12.5, 2.5),
    (12.5, 62.5, 2.5),
]))
fillet5.Radius = 12.4
body25 = doc.addObject("PartDesign::Body", "Body024")

sketch17 = body25.newObject("Sketcher::SketchObject", "Sketch016")
sketch17.AttachmentSupport = (doc.getObject("XY_Plane024"), [""])
sketch17.MapMode = "FlatFace"
sketch17.addGeometry([
    Part.LineSegment(Vector(-76, 38, 0), Vector(-76, 12, 0)),
    Part.LineSegment(Vector(-76, 12, 0), Vector(76, 12, 0)),
    Part.LineSegment(Vector(76, 12, 0), Vector(76, 38, 0)),
    Part.LineSegment(Vector(76, 38, 0), Vector(-76, 38, 0)),
], False)
sketch17.addConstraint([
    Sketcher.Constraint("Coincident", 0, 2, 1, 1),
    Sketcher.Constraint("Coincident", 1, 2, 2, 1),
    Sketcher.Constraint("Coincident", 2, 2, 3, 1),
    Sketcher.Constraint("Coincident", 3, 2, 0, 1),
    Sketcher.Constraint("Vertical", 0),
    Sketcher.Constraint("Horizontal", 1),
    Sketcher.Constraint("Vertical", 2),
    Sketcher.Constraint("Horizontal", 3),
    Sketcher.Constraint("DistanceY", 0, 2, 0, 1, 25.0),
    Sketcher.Constraint("DistanceX", 1, 1, 1, 2, 152.4),
    Sketcher.Constraint("DistanceX", 0, 2, -1, 1, 76.2),
    Sketcher.Constraint("DistanceY", -1, 1, 0, 2, 12.5),
])
pad11 = body25.newObject("PartDesign::Pad", "Pad010")
pad11.Profile = sketch17
pad11.Length = 5
doc.recompute()

fillet6 = body25.newObject("PartDesign::Fillet", "Fillet005")
fillet6.Base = (pad11, edges_at(pad11, [
    (-76.2, 12.5, 2.5),
    (-76.2, 37.5, 2.5),
    (76.2, 12.5, 2.5),
    (76.2, 37.5, 2.5),
]))
fillet6.Radius = 12.4
doc.recompute()

boolean21 = body25.newObject("PartDesign::Boolean", "Boolean020")
boolean21.Type = "Fuse"
boolean21.addObjects([body24])
doc.recompute()

boolean22 = body25.newObject("PartDesign::Boolean", "Boolean021")
boolean22.Type = "Cut"
boolean22.addObjects([body23])
doc.recompute()

boolean23 = body25.newObject("PartDesign::Boolean", "Boolean022")
boolean23.Type = "Fuse"
boolean23.addObjects([body5])
doc.recompute()

boolean24 = body25.newObject("PartDesign::Boolean", "Boolean023")
boolean24.Type = "Fuse"
boolean24.addObjects([body10])

doc.recompute()
